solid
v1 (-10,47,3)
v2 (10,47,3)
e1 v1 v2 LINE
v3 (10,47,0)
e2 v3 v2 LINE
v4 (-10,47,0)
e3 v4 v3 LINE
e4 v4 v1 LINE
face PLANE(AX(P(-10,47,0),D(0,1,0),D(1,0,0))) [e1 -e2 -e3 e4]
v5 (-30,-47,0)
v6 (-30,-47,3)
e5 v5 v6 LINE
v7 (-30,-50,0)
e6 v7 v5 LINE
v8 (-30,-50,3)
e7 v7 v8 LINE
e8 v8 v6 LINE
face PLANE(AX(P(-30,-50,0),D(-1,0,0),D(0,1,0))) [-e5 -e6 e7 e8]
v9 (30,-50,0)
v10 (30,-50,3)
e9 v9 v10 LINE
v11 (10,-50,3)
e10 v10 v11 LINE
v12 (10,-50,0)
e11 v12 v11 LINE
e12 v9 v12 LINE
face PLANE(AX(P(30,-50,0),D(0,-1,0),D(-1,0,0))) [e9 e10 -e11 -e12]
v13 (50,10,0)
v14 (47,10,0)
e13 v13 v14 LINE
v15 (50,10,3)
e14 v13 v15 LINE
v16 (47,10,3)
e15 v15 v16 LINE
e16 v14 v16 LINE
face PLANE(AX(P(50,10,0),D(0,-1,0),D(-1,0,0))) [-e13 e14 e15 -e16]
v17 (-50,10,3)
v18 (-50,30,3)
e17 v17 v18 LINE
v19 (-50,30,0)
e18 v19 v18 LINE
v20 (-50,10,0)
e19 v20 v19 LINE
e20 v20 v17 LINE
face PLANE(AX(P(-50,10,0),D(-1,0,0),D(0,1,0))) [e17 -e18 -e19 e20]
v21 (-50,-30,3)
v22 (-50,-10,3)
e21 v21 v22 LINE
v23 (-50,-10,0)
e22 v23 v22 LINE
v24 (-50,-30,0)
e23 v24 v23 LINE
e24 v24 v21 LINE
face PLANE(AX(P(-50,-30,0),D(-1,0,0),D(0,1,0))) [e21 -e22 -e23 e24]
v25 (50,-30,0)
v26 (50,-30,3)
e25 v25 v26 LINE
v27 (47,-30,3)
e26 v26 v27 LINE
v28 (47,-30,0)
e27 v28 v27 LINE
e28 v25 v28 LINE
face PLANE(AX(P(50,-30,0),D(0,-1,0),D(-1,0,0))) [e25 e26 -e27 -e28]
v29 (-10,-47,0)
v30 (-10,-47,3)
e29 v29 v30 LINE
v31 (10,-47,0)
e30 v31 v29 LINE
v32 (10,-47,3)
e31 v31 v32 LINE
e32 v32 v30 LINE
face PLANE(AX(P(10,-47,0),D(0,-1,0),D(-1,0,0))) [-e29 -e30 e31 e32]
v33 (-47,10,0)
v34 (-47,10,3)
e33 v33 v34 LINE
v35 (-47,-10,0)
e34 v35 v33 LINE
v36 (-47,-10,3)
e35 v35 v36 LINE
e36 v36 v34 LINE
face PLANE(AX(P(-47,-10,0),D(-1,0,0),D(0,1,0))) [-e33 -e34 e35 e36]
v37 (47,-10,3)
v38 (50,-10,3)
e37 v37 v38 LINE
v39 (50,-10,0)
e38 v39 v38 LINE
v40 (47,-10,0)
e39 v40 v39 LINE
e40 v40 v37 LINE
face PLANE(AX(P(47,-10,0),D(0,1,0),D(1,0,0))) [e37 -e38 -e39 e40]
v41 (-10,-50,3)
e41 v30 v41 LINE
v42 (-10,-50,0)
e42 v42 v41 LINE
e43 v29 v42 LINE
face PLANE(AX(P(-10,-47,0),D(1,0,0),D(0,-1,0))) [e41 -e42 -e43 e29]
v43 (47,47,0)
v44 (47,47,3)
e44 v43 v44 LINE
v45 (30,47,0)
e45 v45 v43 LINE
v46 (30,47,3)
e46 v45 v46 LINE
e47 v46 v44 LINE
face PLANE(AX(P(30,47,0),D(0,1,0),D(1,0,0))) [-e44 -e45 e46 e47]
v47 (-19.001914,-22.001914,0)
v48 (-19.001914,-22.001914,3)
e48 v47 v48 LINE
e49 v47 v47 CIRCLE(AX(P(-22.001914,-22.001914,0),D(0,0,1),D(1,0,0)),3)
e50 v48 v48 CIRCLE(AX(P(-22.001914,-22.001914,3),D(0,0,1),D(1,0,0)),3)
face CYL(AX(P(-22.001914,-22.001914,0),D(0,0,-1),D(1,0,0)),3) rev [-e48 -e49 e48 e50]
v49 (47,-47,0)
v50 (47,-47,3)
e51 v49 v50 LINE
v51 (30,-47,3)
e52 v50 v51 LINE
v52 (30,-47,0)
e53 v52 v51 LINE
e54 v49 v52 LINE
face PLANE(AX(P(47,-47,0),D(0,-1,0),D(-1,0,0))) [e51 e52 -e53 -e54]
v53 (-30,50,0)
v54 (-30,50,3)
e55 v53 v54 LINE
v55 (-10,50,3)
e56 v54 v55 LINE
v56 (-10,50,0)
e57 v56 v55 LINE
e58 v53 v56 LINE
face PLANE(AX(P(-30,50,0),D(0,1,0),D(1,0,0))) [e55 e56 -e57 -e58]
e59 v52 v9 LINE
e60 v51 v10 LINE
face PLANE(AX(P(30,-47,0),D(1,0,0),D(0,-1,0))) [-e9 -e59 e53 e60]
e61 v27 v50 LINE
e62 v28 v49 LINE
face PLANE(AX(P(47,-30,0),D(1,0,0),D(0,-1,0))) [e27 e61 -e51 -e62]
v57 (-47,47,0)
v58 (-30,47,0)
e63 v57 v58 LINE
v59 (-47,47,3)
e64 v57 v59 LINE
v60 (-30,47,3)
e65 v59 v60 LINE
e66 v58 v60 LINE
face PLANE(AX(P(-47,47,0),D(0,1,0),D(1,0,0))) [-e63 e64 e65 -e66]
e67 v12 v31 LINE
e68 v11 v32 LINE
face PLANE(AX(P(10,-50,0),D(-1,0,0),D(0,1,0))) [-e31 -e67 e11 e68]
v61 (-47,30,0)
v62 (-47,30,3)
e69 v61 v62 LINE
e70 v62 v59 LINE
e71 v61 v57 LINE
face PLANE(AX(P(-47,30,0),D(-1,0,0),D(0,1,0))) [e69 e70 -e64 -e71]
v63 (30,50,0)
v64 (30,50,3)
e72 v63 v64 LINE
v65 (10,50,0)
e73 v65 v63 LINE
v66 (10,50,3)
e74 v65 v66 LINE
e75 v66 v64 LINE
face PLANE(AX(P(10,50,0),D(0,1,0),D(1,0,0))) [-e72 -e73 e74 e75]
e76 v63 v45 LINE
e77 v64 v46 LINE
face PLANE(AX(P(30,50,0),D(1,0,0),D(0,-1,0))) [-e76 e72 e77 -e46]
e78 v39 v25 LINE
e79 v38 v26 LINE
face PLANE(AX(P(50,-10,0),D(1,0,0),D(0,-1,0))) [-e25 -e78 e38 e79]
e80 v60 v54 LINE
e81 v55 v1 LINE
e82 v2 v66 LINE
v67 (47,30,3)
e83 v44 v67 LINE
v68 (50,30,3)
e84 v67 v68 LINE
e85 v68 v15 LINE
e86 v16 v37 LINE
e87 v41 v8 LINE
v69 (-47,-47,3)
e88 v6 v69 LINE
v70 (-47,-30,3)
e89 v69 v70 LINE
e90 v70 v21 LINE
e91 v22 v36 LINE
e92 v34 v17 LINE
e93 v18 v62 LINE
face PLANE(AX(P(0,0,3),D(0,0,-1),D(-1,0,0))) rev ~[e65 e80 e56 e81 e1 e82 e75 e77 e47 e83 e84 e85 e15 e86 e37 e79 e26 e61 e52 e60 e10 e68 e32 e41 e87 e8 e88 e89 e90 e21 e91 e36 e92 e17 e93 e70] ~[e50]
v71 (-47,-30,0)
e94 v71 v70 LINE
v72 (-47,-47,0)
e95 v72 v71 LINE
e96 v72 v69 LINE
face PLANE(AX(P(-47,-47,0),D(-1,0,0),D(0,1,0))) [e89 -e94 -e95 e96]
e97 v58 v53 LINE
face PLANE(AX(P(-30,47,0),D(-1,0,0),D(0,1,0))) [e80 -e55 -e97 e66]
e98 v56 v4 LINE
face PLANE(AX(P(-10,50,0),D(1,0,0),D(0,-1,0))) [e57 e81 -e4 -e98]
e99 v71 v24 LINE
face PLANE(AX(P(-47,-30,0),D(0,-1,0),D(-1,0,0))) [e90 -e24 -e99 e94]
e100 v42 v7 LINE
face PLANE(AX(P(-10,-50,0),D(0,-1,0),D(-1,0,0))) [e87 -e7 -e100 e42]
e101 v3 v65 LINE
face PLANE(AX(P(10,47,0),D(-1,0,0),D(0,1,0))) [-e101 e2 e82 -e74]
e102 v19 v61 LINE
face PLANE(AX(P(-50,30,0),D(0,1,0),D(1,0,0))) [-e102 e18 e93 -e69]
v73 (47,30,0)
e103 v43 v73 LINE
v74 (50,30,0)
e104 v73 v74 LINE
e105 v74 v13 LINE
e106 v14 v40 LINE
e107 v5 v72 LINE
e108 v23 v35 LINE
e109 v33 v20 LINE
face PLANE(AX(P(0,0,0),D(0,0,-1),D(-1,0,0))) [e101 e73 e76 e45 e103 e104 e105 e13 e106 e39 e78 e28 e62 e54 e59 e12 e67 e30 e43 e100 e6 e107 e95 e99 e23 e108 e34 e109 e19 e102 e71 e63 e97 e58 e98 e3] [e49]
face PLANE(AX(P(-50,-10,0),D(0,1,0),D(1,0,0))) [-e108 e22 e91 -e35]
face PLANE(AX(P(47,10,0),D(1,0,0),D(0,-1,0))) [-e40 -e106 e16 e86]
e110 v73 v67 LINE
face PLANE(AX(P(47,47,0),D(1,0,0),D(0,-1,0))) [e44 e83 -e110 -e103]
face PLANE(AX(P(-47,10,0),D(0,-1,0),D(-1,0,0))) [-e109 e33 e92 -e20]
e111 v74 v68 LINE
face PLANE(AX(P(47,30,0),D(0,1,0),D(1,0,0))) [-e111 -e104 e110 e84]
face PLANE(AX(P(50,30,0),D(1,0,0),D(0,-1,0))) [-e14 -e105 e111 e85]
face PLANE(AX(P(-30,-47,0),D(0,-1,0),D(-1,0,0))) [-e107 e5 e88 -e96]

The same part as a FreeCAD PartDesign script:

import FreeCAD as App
import Part
import Sketcher
from FreeCAD import Vector
Q = App.Units.Quantity

doc = App.newDocument("Part")
body = doc.addObject("PartDesign::Body", "Body")

sketch1 = body.newObject("Sketcher::SketchObject", "Sketch")
sketch1.AttachmentSupport = (doc.getObject("XY_Plane"), [""])
sketch1.MapMode = "FlatFace"
sketch1.addGeometry([
    Part.LineSegment(Vector(10, 47, 0), Vector(-10, 47, 0)),
    Part.LineSegment(Vector(-10, 47, 0), Vector(-10, 50, 0)),
    Part.LineSegment(Vector(-10, 50, 0), Vector(-30, 50, 0)),
    Part.LineSegment(Vector(-30, 50, 0), Vector(-30, 47, 0)),
    Part.LineSegment(Vector(-30, 47, 0), Vector(-47, 47, 0)),
    Part.LineSegment(Vector(-47, 47, 0), Vector(-47, 30, 0)),
    Part.LineSegment(Vector(-47, 30, 0), Vector(-50, 30, 0)),
    Part.LineSegment(Vector(-50, 30, 0), Vector(-50, 10, 0)),
    Part.LineSegment(Vector(-50, 10, 0), Vector(-47, 10, 0)),
    Part.LineSegment(Vector(-47, 10, 0), Vector(-47, -10, 0)),
    Part.LineSegment(Vector(-47, -10, 0), Vector(-50, -10, 0)),
    Part.LineSegment(Vector(-50, -10, 0), Vector(-50, -30, 0)),
    Part.LineSegment(Vector(-50, -30, 0), Vector(-47, -30, 0)),
    Part.LineSegment(Vector(-47, -30, 0), Vector(-47, -47, 0)),
    Part.LineSegment(Vector(-47, -47, 0), Vector(-30, -47, 0)),
    Part.LineSegment(Vector(-30, -47, 0), Vector(-30, -50, 0)),
    Part.LineSegment(Vector(-30, -50, 0), Vector(-10, -50, 0)),
    Part.LineSegment(Vector(-10, -50, 0), Vector(-10, -47, 0)),
    Part.LineSegment(Vector(-10, -47, 0), Vector(10, -47, 0)),
    Part.LineSegment(Vector(10, -47, 0), Vector(10, -50, 0)),
    Part.LineSegment(Vector(10, -50, 0), Vector(30, -50, 0)),
    Part.LineSegment(Vector(30, -50, 0), Vector(30, -47, 0)),
    Part.LineSegment(Vector(30, -47, 0), Vector(47, -47, 0)),
    Part.LineSegment(Vector(47, -47, 0), Vector(47, -30, 0)),
    Part.LineSegment(Vector(47, -30, 0), Vector(50, -30, 0)),
    Part.LineSegment(Vector(50, -30, 0), Vector(50, -10, 0)),
    Part.LineSegment(Vector(50, -10, 0), Vector(47, -10, 0)),
    Part.LineSegment(Vector(47, -10, 0), Vector(47, 10, 0)),
    Part.LineSegment(Vector(47, 10, 0), Vector(50, 10, 0)),
    Part.LineSegment(Vector(50, 10, 0), Vector(50, 30, 0)),
    Part.LineSegment(Vector(50, 30, 0), Vector(47, 30, 0)),
    Part.LineSegment(Vector(47, 30, 0), Vector(47, 47, 0)),
    Part.LineSegment(Vector(47, 47, 0), Vector(30, 47, 0)),
    Part.LineSegment(Vector(30, 47, 0), Vector(30, 50, 0)),
    Part.LineSegment(Vector(30, 50, 0), Vector(10, 50, 0)),
    Part.LineSegment(Vector(10, 50, 0), Vector(10, 47, 0)),
    Part.Circle(Vector(-22, -22, 0), Vector(0, 0, 1), 3),
], False)
sketch1.addConstraint([
    Sketcher.Constraint("Coincident", 0, 2, 1, 1),
    Sketcher.Constraint("Coincident", 1, 2, 2, 1),
    Sketcher.Constraint("Coincident", 2, 2, 3, 1),
    Sketcher.Constraint("Coincident", 3, 2, 4, 1),
    Sketcher.Constraint("Coincident", 4, 2, 5, 1),
    Sketcher.Constraint("Coincident", 5, 2, 6, 1),
    Sketcher.Constraint("Coincident", 6, 2, 7, 1),
    Sketcher.Constraint("Coincident", 7, 2, 8, 1),
    Sketcher.Constraint("Coincident", 8, 2, 9, 1),
    Sketcher.Constraint("Coincident", 9, 2, 10, 1),
    Sketcher.Constraint("Coincident", 10, 2, 11, 1),
    Sketcher.Constraint("Coincident", 11, 2, 12, 1),
    Sketcher.Constraint("Coincident", 12, 2, 13, 1),
    Sketcher.Constraint("Coincident", 13, 2, 14, 1),
    Sketcher.Constraint("Coincident", 14, 2, 15, 1),
    Sketcher.Constraint("Coincident", 15, 2, 16, 1),
    Sketcher.Constraint("Coincident", 16, 2, 17, 1),
    Sketcher.Constraint("Coincident", 17, 2, 18, 1),
    Sketcher.Constraint("Coincident", 18, 2, 19, 1),
    Sketcher.Constraint("Coincident", 19, 2, 20, 1),
    Sketcher.Constraint("Coincident", 20, 2, 21, 1),
    Sketcher.Constraint("Coincident", 21, 2, 22, 1),
    Sketcher.Constraint("Coincident", 22, 2, 23, 1),
    Sketcher.Constraint("Coincident", 23, 2, 24, 1),
    Sketcher.Constraint("Coincident", 24, 2, 25, 1),
    Sketcher.Constraint("Coincident", 25, 2, 26, 1),
    Sketcher.Constraint("Coincident", 26, 2, 27, 1),
    Sketcher.Constraint("Coincident", 27, 2, 28, 1),
    Sketcher.Constraint("Coincident", 28, 2, 29, 1),
    Sketcher.Constraint("Coincident", 29, 2, 30, 1),
    Sketcher.Constraint("Coincident", 30, 2, 31, 1),
    Sketcher.Constraint("Coincident", 31, 2, 32, 1),
    Sketcher.Constraint("Coincident", 32, 2, 33, 1),
    Sketcher.Constraint("Coincident", 33, 2, 34, 1),
    Sketcher.Constraint("Coincident", 34, 2, 35, 1),
    Sketcher.Constraint("Coincident", 35, 2, 0, 1),
    Sketcher.Constraint("Horizontal", 0),
    Sketcher.Constraint("Vertical", 1),
    Sketcher.Constraint("Horizontal", 2),
    Sketcher.Constraint("Vertical", 3),
    Sketcher.Constraint("Horizontal", 4),
    Sketcher.Constraint("Vertical", 5),
    Sketcher.Constraint("Horizontal", 6),
    Sketcher.Constraint("Vertical", 7),
    Sketcher.Constraint("Horizontal", 8),
    Sketcher.Constraint("Vertical", 9),
    Sketcher.Constraint("Horizontal", 10),
    Sketcher.Constraint("Vertical", 11),
    Sketcher.Constraint("Horizontal", 12),
    Sketcher.Constraint("Vertical", 13),
    Sketcher.Constraint("Horizontal", 14),
    Sketcher.Constraint("Vertical", 15),
    Sketcher.Constraint("Horizontal", 16),
    Sketcher.Constraint("Vertical", 17),
    Sketcher.Constraint("Horizontal", 18),
    Sketcher.Constraint("Vertical", 19),
    Sketcher.Constraint("Horizontal", 20),
    Sketcher.Constraint("Vertical", 21),
    Sketcher.Constraint("Horizontal", 22),
    Sketcher.Constraint("Vertical", 23),
    Sketcher.Constraint("Horizontal", 24),
    Sketcher.Constraint("Vertical", 25),
    Sketcher.Constraint("Horizontal", 26),
    Sketcher.Constraint("Vertical", 27),
    Sketcher.Constraint("Horizontal", 28),
    Sketcher.Constraint("Vertical", 29),
    Sketcher.Constraint("Horizontal", 30),
    Sketcher.Constraint("Vertical", 31),
    Sketcher.Constraint("Horizontal", 32),
    Sketcher.Constraint("Vertical", 33),
    Sketcher.Constraint("Horizontal", 34),
    Sketcher.Constraint("Vertical", 35),
    Sketcher.Constraint("Symmetric", 0, 2, 18, 2, -1, 1),
    Sketcher.Constraint("Symmetric", 2, 2, 20, 2, -1, 1),
    Sketcher.Constraint("Symmetric", 4, 2, 22, 2, -1, 1),
    Sketcher.Constraint("Symmetric", 6, 2, 24, 2, -1, 1),
    Sketcher.Constraint("Symmetric", 8, 2, 26, 2, -1, 1),
    Sketcher.Constraint("Symmetric", 10, 2, 28, 2, -1, 1),
    Sketcher.Constraint("Symmetric", 12, 2, 30, 2, -1, 1),
    Sketcher.Constraint("Symmetric", 14, 2, 32, 2, -1, 1),
    Sketcher.Constraint("Symmetric", 16, 2, 34, 2, -1, 1),
    Sketcher.Constraint("Symmetric", 16, 2, 19, 2, -2),
    Sketcher.Constraint("Symmetric", 14, 2, 21, 2, -2),
    Sketcher.Constraint("Symmetric", 12, 2, 23, 2, -2),
    Sketcher.Constraint("Symmetric", 10, 2, 25, 2, -2),
    Sketcher.Constraint("Horizontal", 0, 2, 3, 2),
    Sketcher.Constraint("Vertical", 5, 2, 8, 2),
    Sketcher.Constraint("Equal", 0, 2),
    Sketcher.Constraint("Equal", 30, 1),
    Sketcher.Constraint("Equal", 32, 5),
    Sketcher.Constraint("Equal", 34, 7),
    Sketcher.Constraint("Equal", 7, 9),
    Sketcher.Constraint("Diameter", 36, Q("6 mm")),
    Sketcher.Constraint("DistanceX", 0, 2, 0, 1, Q("20 mm")),
    Sketcher.Constraint("DistanceX", 4, 2, 4, 1, Q("17 mm")),
    Sketcher.Constraint("DistanceX", 6, 2, 6, 1, Q("3 mm")),
    Sketcher.Constraint("DistanceX", 36, 3, -1, 1, Q("22.001914 mm")),
    Sketcher.Constraint("DistanceY", 36, 3, -1, 1, Q("22.001914 mm")),
])
pad1 = body.newObject("PartDesign::Pad", "Pad")
pad1.Profile = sketch1
pad1.Length = 3

doc.recompute()
